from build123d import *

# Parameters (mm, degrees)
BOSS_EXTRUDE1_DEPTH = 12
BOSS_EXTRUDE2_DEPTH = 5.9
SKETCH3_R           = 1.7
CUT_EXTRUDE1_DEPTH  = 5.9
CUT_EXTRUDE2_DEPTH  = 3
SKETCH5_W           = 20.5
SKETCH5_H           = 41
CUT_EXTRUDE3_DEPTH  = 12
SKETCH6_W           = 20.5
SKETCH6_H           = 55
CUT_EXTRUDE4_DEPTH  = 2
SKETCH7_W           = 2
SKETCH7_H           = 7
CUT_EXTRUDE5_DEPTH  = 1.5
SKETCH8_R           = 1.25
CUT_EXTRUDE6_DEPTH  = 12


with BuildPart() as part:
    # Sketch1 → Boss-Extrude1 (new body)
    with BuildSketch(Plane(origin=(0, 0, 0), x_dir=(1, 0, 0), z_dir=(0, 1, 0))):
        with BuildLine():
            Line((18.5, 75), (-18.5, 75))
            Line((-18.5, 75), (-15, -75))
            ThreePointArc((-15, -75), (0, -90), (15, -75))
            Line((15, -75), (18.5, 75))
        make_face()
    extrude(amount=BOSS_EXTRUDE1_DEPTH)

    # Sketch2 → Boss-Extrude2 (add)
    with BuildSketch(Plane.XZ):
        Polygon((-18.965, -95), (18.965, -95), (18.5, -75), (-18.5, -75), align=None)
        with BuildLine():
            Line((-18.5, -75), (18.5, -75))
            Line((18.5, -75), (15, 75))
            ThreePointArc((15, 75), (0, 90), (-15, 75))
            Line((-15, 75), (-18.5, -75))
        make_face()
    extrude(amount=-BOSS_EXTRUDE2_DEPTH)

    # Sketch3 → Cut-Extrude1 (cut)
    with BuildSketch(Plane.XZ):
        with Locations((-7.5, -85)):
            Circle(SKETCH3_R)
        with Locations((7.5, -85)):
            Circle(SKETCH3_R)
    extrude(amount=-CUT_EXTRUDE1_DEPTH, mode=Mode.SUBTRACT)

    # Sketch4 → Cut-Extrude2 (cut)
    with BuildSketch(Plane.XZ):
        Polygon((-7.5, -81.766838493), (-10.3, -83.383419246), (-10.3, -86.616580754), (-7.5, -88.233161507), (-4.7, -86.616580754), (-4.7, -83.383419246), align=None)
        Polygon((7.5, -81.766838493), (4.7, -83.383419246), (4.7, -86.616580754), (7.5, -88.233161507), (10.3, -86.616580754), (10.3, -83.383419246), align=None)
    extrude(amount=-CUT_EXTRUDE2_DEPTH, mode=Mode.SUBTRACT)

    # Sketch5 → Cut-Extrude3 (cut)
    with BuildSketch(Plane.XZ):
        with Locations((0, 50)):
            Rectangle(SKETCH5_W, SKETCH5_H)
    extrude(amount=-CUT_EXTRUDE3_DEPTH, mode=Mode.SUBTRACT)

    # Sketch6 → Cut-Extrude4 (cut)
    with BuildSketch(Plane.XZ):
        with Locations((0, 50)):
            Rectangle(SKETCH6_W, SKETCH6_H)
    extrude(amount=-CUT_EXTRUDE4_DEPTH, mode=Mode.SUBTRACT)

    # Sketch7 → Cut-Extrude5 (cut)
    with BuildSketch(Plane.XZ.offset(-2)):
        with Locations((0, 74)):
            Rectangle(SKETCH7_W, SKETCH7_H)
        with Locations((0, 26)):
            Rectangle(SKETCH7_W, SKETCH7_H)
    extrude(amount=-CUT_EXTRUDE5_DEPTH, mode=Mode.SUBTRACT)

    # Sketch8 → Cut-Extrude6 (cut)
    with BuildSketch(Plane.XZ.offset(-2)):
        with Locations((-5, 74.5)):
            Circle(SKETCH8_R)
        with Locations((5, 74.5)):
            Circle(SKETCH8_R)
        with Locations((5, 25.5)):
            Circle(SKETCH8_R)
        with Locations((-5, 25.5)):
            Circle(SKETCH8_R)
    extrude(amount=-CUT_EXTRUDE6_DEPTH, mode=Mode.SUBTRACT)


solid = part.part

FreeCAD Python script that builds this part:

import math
import FreeCAD as App
import Part
import Sketcher
from FreeCAD import Vector
Q = App.Units.Quantity

doc = App.newDocument("Part")
body = doc.addObject("PartDesign::Body", "Body")

# Sketch on XZ plane
sketch1 = doc.addObject("Sketcher::SketchObject", "Sketch")
body.addObject(sketch1)
sketch1.AttachmentSupport = (doc.XZ_Plane, [""])
sketch1.MapMode = "FlatFace"
sketch1.addGeometry([
    Part.LineSegment(Vector(18, -75, 0), Vector(-18, -75, 0)),
    Part.LineSegment(Vector(-18, -75, 0), Vector(-15, 75, 0)),
    Part.ArcOfCircle(Part.Circle(Vector(0, 75, 0), Vector(0, 0, 1), 15), math.radians(0), math.radians(180)),
    Part.LineSegment(Vector(15, 75, 0), Vector(18, -75, 0)),
], False)
sketch1.addConstraint([
    Sketcher.Constraint("Coincident", 0, 2, 1, 1),
    Sketcher.Constraint("Coincident", 1, 2, 2, 2),
    Sketcher.Constraint("Coincident", 2, 1, 3, 1),
    Sketcher.Constraint("Coincident", 3, 2, 0, 1),
    Sketcher.Constraint("Horizontal", 0),
    Sketcher.Constraint("Symmetric", 1, 2, 2, 1, -2),
    Sketcher.Constraint("Horizontal", 2, 3, 1, 2),
    Sketcher.Constraint("Equal", 1, 3),
    Sketcher.Constraint("Radius", 2, Q("15 mm")),
    Sketcher.Constraint("DistanceX", 0, 2, 0, 1, Q("37 mm")),
    Sketcher.Constraint("DistanceY", -1, 1, 2, 3, Q("75 mm")),
    Sketcher.Constraint("DistanceY", 0, 2, -1, 1, Q("75 mm")),
])
pad1 = doc.addObject("PartDesign::Pad", "Pad")
body.addObject(pad1)
pad1.Profile = sketch1
pad1.Length = 12
pad1.Reversed = True

# Sketch on XZ plane
sketch2 = doc.addObject("Sketcher::SketchObject", "Sketch001")
body.addObject(sketch2)
sketch2.AttachmentSupport = (doc.XZ_Plane, [""])
sketch2.MapMode = "FlatFace"
sketch2.addGeometry([
    Part.LineSegment(Vector(-19, -95, 0), Vector(19, -95, 0)),  # 0
    Part.LineSegment(Vector(19, -95, 0), Vector(18, -75, 0)),  # 1
    Part.LineSegment(Vector(18, -75, 0), Vector(15, 75, 0)),  # 2
    Part.ArcOfCircle(Part.Circle(Vector(0, 75, 0), Vector(0, 0, 1), 15), math.radians(0), math.radians(180)),  # 3
    Part.LineSegment(Vector(-15, 75, 0), Vector(-18, -75, 0)),  # 4
    Part.LineSegment(Vector(-18, -75, 0), Vector(-19, -95, 0)),  # 5
], False)
sketch2.addConstraint([
    Sketcher.Constraint("Coincident", 0, 2, 1, 1),
    Sketcher.Constraint("Coincident", 1, 2, 2, 1),
    Sketcher.Constraint("Coincident", 2, 2, 3, 1),
    Sketcher.Constraint("Coincident", 3, 2, 4, 1),
    Sketcher.Constraint("Coincident", 4, 2, 5, 1),
    Sketcher.Constraint("Coincident", 5, 2, 0, 1),
    Sketcher.Constraint("Horizontal", 0),
    Sketcher.Constraint("Symmetric", 2, 2, 3, 2, -2),
    Sketcher.Constraint("Symmetric", 1, 2, 4, 2, -2),
    Sketcher.Constraint("Horizontal", 3, 3, 2, 2),
    Sketcher.Constraint("Equal", 1, 5),
    Sketcher.Constraint("Radius", 3, Q("15 mm")),
    Sketcher.Constraint("DistanceY", -1, 1, 3, 3, Q("75 mm")),
    Sketcher.Constraint("DistanceY", 0, 2, -1, 1, Q("95 mm")),
    Sketcher.Constraint("DistanceY", 1, 2, -1, 1, Q("75 mm")),
    Sketcher.Constraint("DistanceX", 4, 2, 1, 2, Q("37 mm")),
    Sketcher.Constraint("DistanceX", 0, 1, 0, 2, Q("37.93 mm")),
])
pad2 = doc.addObject("PartDesign::Pad", "Pad001")
body.addObject(pad2)
pad2.Profile = sketch2
pad2.Length = 5.9
pad2.Reversed = True

# Sketch on XZ plane
sketch3 = doc.addObject("Sketcher::SketchObject", "Sketch002")
body.addObject(sketch3)
sketch3.AttachmentSupport = (doc.XZ_Plane, [""])
sketch3.MapMode = "FlatFace"
sketch3.addGeometry([
    Part.Circle(Vector(-7.5, -85, 0), Vector(0, 0, 1), 1.7),
    Part.Circle(Vector(7.5, -85, 0), Vector(0, 0, 1), 1.7),
], False)
sketch3.addConstraint([
    Sketcher.Constraint("Equal", 0, 1),
    Sketcher.Constraint("Symmetric", 0, 3, 1, 3, -2),
    Sketcher.Constraint("Diameter", 0, Q("3.4 mm")),
    Sketcher.Constraint("DistanceY", 0, 3, -1, 1, Q("85 mm")),
    Sketcher.Constraint("DistanceX", 0, 3, 1, 3, Q("15 mm")),
])
pocket1 = doc.addObject("PartDesign::Pocket", "Pocket")
body.addObject(pocket1)
pocket1.Profile = sketch3
pocket1.Length = 5.9

# Sketch on XZ plane
sketch4 = doc.addObject("Sketcher::SketchObject", "Sketch003")
body.addObject(sketch4)
sketch4.AttachmentSupport = (doc.XZ_Plane, [""])
sketch4.MapMode = "FlatFace"
sketch4.addGeometry([
    Part.LineSegment(Vector(-7.5, -81.8, 0), Vector(-10.3, -83.4, 0)),  # 0
    Part.LineSegment(Vector(-10.3, -83.4, 0), Vector(-10.3, -86.6, 0)),  # 1
    Part.LineSegment(Vector(-10.3, -86.6, 0), Vector(-7.5, -88.2, 0)),  # 2
    Part.LineSegment(Vector(-7.5, -88.2, 0), Vector(-4.7, -86.6, 0)),  # 3
    Part.LineSegment(Vector(-4.7, -86.6, 0), Vector(-4.7, -83.4, 0)),  # 4
    Part.LineSegment(Vector(-4.7, -83.4, 0), Vector(-7.5, -81.8, 0)),  # 5
    Part.LineSegment(Vector(7.5, -81.8, 0), Vector(4.7, -83.4, 0)),  # 6
    Part.LineSegment(Vector(4.7, -83.4, 0), Vector(4.7, -86.6, 0)),  # 7
    Part.LineSegment(Vector(4.7, -86.6, 0), Vector(7.5, -88.2, 0)),  # 8
    Part.LineSegment(Vector(7.5, -88.2, 0), Vector(10.3, -86.6, 0)),  # 9
    Part.LineSegment(Vector(10.3, -86.6, 0), Vector(10.3, -83.4, 0)),  # 10
    Part.LineSegment(Vector(10.3, -83.4, 0), Vector(7.5, -81.8, 0)),  # 11
], False)
sketch4.addConstraint([
    Sketcher.Constraint("Coincident", 0, 2, 1, 1),
    Sketcher.Constraint("Coincident", 1, 2, 2, 1),
    Sketcher.Constraint("Coincident", 2, 2, 3, 1),
    Sketcher.Constraint("Coincident", 3, 2, 4, 1),
    Sketcher.Constraint("Coincident", 4, 2, 5, 1),
    Sketcher.Constraint("Coincident", 5, 2, 0, 1),
    Sketcher.Constraint("Coincident", 6, 2, 7, 1),
    Sketcher.Constraint("Coincident", 7, 2, 8, 1),
    Sketcher.Constraint("Coincident", 8, 2, 9, 1),
    Sketcher.Constraint("Coincident", 9, 2, 10, 1),
    Sketcher.Constraint("Coincident", 10, 2, 11, 1),
    Sketcher.Constraint("Coincident", 11, 2, 6, 1),
    Sketcher.Constraint("Vertical", 1),
    Sketcher.Constraint("Vertical", 4),
    Sketcher.Constraint("Vertical", 7),
    Sketcher.Constraint("Vertical", 10),
    Sketcher.Constraint("Symmetric", 4, 2, 6, 2, -2),
    Sketcher.Constraint("Symmetric", 2, 2, 8, 2, -2),
    Sketcher.Constraint("Symmetric", 1, 2, 9, 2, -2),
    Sketcher.Constraint("Symmetric", 5, 2, 11, 2, -2),
    Sketcher.Constraint("Parallel", 0, 3),
    Sketcher.Constraint("Parallel", 2, 5),
    Sketcher.Constraint("Parallel", 3, 6),
    Sketcher.Constraint("Parallel", 5, 8),
    Sketcher.Constraint("Parallel", 8, 11),
    Sketcher.Constraint("Horizontal", 1, 2, 3, 2),
    Sketcher.Constraint("Horizontal", 0, 2, 4, 2),
    Sketcher.Constraint("Angle", 0, Q("-150 deg")),
    Sketcher.Constraint("DistanceX", 0, 2, 6, 2, Q("15 mm")),
    Sketcher.Constraint("DistanceX", 0, 2, -1, 1, Q("10.3 mm")),
    Sketcher.Constraint("DistanceY", 1, 2, 1, 1, Q("3.233162 mm")),
    Sketcher.Constraint("DistanceY", 0, 2, -1, 1, Q("83.383419 mm")),
])
pocket2 = doc.addObject("PartDesign::Pocket", "Pocket001")
body.addObject(pocket2)
pocket2.Profile = sketch4
pocket2.Length = 3

# Sketch on XZ plane
sketch5 = doc.addObject("Sketcher::SketchObject", "Sketch004")
body.addObject(sketch5)
sketch5.AttachmentSupport = (doc.XZ_Plane, [""])
sketch5.MapMode = "FlatFace"
sketch5.addGeometry([
    Part.LineSegment(Vector(-10, 70, 0), Vector(-10, 30, 0)),
    Part.LineSegment(Vector(-10, 30, 0), Vector(10, 30, 0)),
    Part.LineSegment(Vector(10, 30, 0), Vector(10, 70, 0)),
    Part.LineSegment(Vector(10, 70, 0), Vector(-10, 70, 0)),
], False)
sketch5.addConstraint([
    Sketcher.Constraint("Coincident", 0, 2, 1, 1),
    Sketcher.Constraint("Coincident", 1, 2, 2, 1),
    Sketcher.Constraint("Coincident", 2, 2, 3, 1),
    Sketcher.Constraint("Coincident", 3, 2, 0, 1),
    Sketcher.Constraint("Vertical", 0),
    Sketcher.Constraint("Horizontal", 1),
    Sketcher.Constraint("Vertical", 2),
    Sketcher.Constraint("Horizontal", 3),
    Sketcher.Constraint("DistanceY", 0, 2, 0, 1, Q("41 mm")),
    Sketcher.Constraint("DistanceX", 1, 1, 1, 2, Q("20.5 mm")),
    Sketcher.Constraint("DistanceY", -1, 1, 0, 2, Q("29.5 mm")),
    Sketcher.Constraint("DistanceX", 0, 2, -1, 1, Q("10.25 mm")),
])
pocket3 = doc.addObject("PartDesign::Pocket", "Pocket002")
body.addObject(pocket3)
pocket3.Profile = sketch5
pocket3.Length = 12

# Sketch on XZ plane
sketch6 = doc.addObject("Sketcher::SketchObject", "Sketch005")
body.addObject(sketch6)
sketch6.AttachmentSupport = (doc.XZ_Plane, [""])
sketch6.MapMode = "FlatFace"
sketch6.addGeometry([
    Part.LineSegment(Vector(-10, 78, 0), Vector(-10, 22, 0)),
    Part.LineSegment(Vector(-10, 22, 0), Vector(10, 22, 0)),
    Part.LineSegment(Vector(10, 22, 0), Vector(10, 78, 0)),
    Part.LineSegment(Vector(10, 78, 0), Vector(-10, 78, 0)),
], False)
sketch6.addConstraint([
    Sketcher.Constraint("Coincident", 0, 2, 1, 1),
    Sketcher.Constraint("Coincident", 1, 2, 2, 1),
    Sketcher.Constraint("Coincident", 2, 2, 3, 1),
    Sketcher.Constraint("Coincident", 3, 2, 0, 1),
    Sketcher.Constraint("Vertical", 0),
    Sketcher.Constraint("Horizontal", 1),
    Sketcher.Constraint("Vertical", 2),
    Sketcher.Constraint("Horizontal", 3),
    Sketcher.Constraint("DistanceY", 0, 2, 0, 1, Q("55 mm")),
    Sketcher.Constraint("DistanceX", 1, 1, 1, 2, Q("20.5 mm")),
    Sketcher.Constraint("DistanceY", -1, 1, 0, 2, Q("22.5 mm")),
    Sketcher.Constraint("DistanceX", 0, 2, -1, 1, Q("10.25 mm")),
])
pocket4 = doc.addObject("PartDesign::Pocket", "Pocket003")
body.addObject(pocket4)
pocket4.Profile = sketch6
pocket4.Length = 2

# Sketch on XZ plane
sketch7 = doc.addObject("Sketcher::SketchObject", "Sketch006")
body.addObject(sketch7)
sketch7.AttachmentSupport = (doc.XZ_Plane, [""])
sketch7.MapMode = "FlatFace"
sketch7.AttachmentOffset = App.Placement(Vector(0, 0, -2), App.Rotation())
sketch7.addGeometry([
    Part.LineSegment(Vector(-1, 77.5, 0), Vector(-1, 70.5, 0)),  # 0
    Part.LineSegment(Vector(-1, 70.5, 0), Vector(1, 70.5, 0)),  # 1
    Part.LineSegment(Vector(1, 70.5, 0), Vector(1, 77.5, 0)),  # 2
    Part.LineSegment(Vector(1, 77.5, 0), Vector(-1, 77.5, 0)),  # 3
    Part.LineSegment(Vector(-1, 29.5, 0), Vector(-1, 22.5, 0)),  # 4
    Part.LineSegment(Vector(-1, 22.5, 0), Vector(1, 22.5, 0)),  # 5
    Part.LineSegment(Vector(1, 22.5, 0), Vector(1, 29.5, 0)),  # 6
    Part.LineSegment(Vector(1, 29.5, 0), Vector(-1, 29.5, 0)),  # 7
], False)
sketch7.addConstraint([
    Sketcher.Constraint("Coincident", 0, 2, 1, 1),
    Sketcher.Constraint("Coincident", 1, 2, 2, 1),
    Sketcher.Constraint("Coincident", 2, 2, 3, 1),
    Sketcher.Constraint("Coincident", 3, 2, 0, 1),
    Sketcher.Constraint("Coincident", 4, 2, 5, 1),
    Sketcher.Constraint("Coincident", 5, 2, 6, 1),
    Sketcher.Constraint("Coincident", 6, 2, 7, 1),
    Sketcher.Constraint("Coincident", 7, 2, 4, 1),
    Sketcher.Constraint("Vertical", 0),
    Sketcher.Constraint("Horizontal", 1),
    Sketcher.Constraint("Vertical", 2),
    Sketcher.Constraint("Horizontal", 3),
    Sketcher.Constraint("Vertical", 4),
    Sketcher.Constraint("Horizontal", 5),
    Sketcher.Constraint("Vertical", 6),
    Sketcher.Constraint("Horizontal", 7),
    Sketcher.Constraint("Vertical", 3, 2, 4, 2),
    Sketcher.Constraint("Vertical", 2, 2, 5, 2),
    Sketcher.Constraint("Equal", 2, 4),
    Sketcher.Constraint("DistanceX", 1, 1, 1, 2, Q("2 mm")),
    Sketcher.Constraint("DistanceY", 0, 2, 0, 1, Q("7 mm")),
    Sketcher.Constraint("DistanceX", 0, 2, -1, 1, Q("1 mm")),
    Sketcher.Constraint("DistanceY", 4, 2, 0, 2, Q("48 mm")),
    Sketcher.Constraint("DistanceY", -1, 1, 0, 2, Q("70.5 mm")),
])
pocket5 = doc.addObject("PartDesign::Pocket", "Pocket004")
body.addObject(pocket5)
pocket5.Profile = sketch7
pocket5.Length = 1.5

# Sketch on XZ plane
sketch8 = doc.addObject("Sketcher::SketchObject", "Sketch007")
body.addObject(sketch8)
sketch8.AttachmentSupport = (doc.XZ_Plane, [""])
sketch8.MapMode = "FlatFace"
sketch8.AttachmentOffset = App.Placement(Vector(0, 0, -2), App.Rotation())
sketch8.addGeometry([
    Part.Circle(Vector(-5, 74.5, 0), Vector(0, 0, 1), 1.2),
    Part.Circle(Vector(5, 74.5, 0), Vector(0, 0, 1), 1.2),
    Part.Circle(Vector(5, 25.5, 0), Vector(0, 0, 1), 1.2),
    Part.Circle(Vector(-5, 25.5, 0), Vector(0, 0, 1), 1.2),
], False)
sketch8.addConstraint([
    Sketcher.Constraint("Equal", 0, 1),
    Sketcher.Constraint("Equal", 1, 2),
    Sketcher.Constraint("Equal", 2, 3),
    Sketcher.Constraint("Symmetric", 0, 3, 1, 3, -2),
    Sketcher.Constraint("Symmetric", 2, 3, 3, 3, -2),
    Sketcher.Constraint("Vertical", 1, 3, 2, 3),
    Sketcher.Constraint("Diameter", 0, Q("2.5 mm")),
    Sketcher.Constraint("DistanceX", 0, 3, -1, 1, Q("5 mm")),
    Sketcher.Constraint("DistanceY", 2, 3, 1, 3, Q("49 mm")),
    Sketcher.Constraint("DistanceY", -1, 1, 0, 3, Q("74.5 mm")),
])
pocket6 = doc.addObject("PartDesign::Pocket", "Pocket005")
body.addObject(pocket6)
pocket6.Profile = sketch8
pocket6.Length = 12

doc.recompute()
